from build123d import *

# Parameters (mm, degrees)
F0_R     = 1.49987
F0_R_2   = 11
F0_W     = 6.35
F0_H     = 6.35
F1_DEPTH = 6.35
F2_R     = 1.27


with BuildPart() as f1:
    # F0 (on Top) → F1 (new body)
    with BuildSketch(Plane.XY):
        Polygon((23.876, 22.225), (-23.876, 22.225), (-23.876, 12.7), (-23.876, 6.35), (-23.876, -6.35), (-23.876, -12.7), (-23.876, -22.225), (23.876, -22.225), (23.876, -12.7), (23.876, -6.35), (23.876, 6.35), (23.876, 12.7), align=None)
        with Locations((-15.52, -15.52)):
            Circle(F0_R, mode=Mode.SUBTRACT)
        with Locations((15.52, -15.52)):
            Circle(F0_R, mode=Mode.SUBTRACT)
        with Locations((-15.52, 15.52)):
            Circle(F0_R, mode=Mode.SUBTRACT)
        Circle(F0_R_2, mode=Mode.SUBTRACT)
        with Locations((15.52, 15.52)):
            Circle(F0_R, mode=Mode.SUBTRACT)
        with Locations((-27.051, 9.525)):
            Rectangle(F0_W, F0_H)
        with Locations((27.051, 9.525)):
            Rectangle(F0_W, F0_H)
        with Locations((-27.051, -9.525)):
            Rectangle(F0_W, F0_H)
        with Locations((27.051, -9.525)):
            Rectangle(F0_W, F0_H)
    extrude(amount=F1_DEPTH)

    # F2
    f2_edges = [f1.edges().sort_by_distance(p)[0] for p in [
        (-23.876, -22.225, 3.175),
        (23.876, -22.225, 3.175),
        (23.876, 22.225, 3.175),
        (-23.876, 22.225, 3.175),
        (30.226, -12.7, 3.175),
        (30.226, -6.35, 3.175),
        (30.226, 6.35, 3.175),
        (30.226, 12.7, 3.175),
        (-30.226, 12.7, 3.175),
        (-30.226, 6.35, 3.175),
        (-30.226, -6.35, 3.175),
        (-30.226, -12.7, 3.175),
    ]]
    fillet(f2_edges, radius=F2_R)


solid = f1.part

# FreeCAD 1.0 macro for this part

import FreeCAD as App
import Part
import Sketcher
from FreeCAD import Vector
Q = App.Units.Quantity


def edges_at(feature, points):
    """Names of the edges that pass closest to the given points."""
    edges = feature.Shape.Edges
    near = lambda p: min(range(len(edges)), key=lambda i: edges[i].distToShape(Part.Vertex(*p))[0])
    return sorted({f"Edge{near(p) + 1}" for p in points})


def add_polygon(sketch, points):
    """Adds a closed chain of lines whose ends are joined by coincident constraints."""
    first, n = sketch.GeometryCount, len(points)
    for a, b in zip(points, points[1:] + points[:1]):
        sketch.addGeometry(Part.LineSegment(App.Vector(*a, 0), App.Vector(*b, 0)), False)
    for i in range(n):
        sketch.addConstraint(Sketcher.Constraint("Coincident", first + i, 2, first + (i + 1) % n, 1))

doc = App.newDocument("Part")
body = doc.addObject("PartDesign::Body", "Body")

# Sketch on XY plane
sketch1 = body.newObject("Sketcher::SketchObject", "Sketch")
sketch1.AttachmentSupport = (doc.getObject("XY_Plane"), [""])
sketch1.MapMode = "FlatFace"
add_polygon(sketch1, [(23.9, 22.2), (-23.9, 22.2), (-23.9, 12.7), (-30.2, 12.7), (-30.2, 6.3), (-23.9, 6.3), (-23.9, -6.3), (-30.2, -6.3), (-30.2, -12.7), (-23.9, -12.7), (-23.9, -22.2), (23.9, -22.2), (23.9, -12.7), (30.2, -12.7), (30.2, -6.3), (23.9, -6.3), (23.9, 6.3), (30.2, 6.3), (30.2, 12.7), (23.9, 12.7)])  # lines 0-19
sketch1.addGeometry(Part.Circle(Vector(-15.5, -15.5, 0), Vector(0, 0, 1), 1.5), False)  # 20
sketch1.addGeometry(Part.Circle(Vector(15.5, -15.5, 0), Vector(0, 0, 1), 1.5), False)  # 21
sketch1.addGeometry(Part.Circle(Vector(-15.5, 15.5, 0), Vector(0, 0, 1), 1.5), False)  # 22
sketch1.addGeometry(Part.Circle(Vector(0, 0, 0), Vector(0, 0, 1), 11), False)  # 23
sketch1.addGeometry(Part.Circle(Vector(15.5, 15.5, 0), Vector(0, 0, 1), 1.5), False)  # 24
sketch1.addConstraint([
    Sketcher.Constraint("Horizontal", 0),
    Sketcher.Constraint("Vertical", 1),
    Sketcher.Constraint("Horizontal", 2),
    Sketcher.Constraint("Vertical", 3),
    Sketcher.Constraint("Horizontal", 4),
    Sketcher.Constraint("Vertical", 5),
    Sketcher.Constraint("Horizontal", 6),
    Sketcher.Constraint("Vertical", 7),
    Sketcher.Constraint("Horizontal", 8),
    Sketcher.Constraint("Vertical", 9),
    Sketcher.Constraint("Horizontal", 10),
    Sketcher.Constraint("Vertical", 11),
    Sketcher.Constraint("Horizontal", 12),
    Sketcher.Constraint("Vertical", 13),
    Sketcher.Constraint("Horizontal", 14),
    Sketcher.Constraint("Vertical", 15),
    Sketcher.Constraint("Horizontal", 16),
    Sketcher.Constraint("Vertical", 17),
    Sketcher.Constraint("Horizontal", 18),
    Sketcher.Constraint("Vertical", 19),
    Sketcher.Constraint("Coincident", 23, 3, -1, 1),
    Sketcher.Constraint("Equal", 20, 21),
    Sketcher.Constraint("Equal", 21, 22),
    Sketcher.Constraint("Equal", 22, 24),
    Sketcher.Constraint("Symmetric", 21, 3, 22, 3, -1, 1),
    Sketcher.Constraint("Symmetric", 20, 3, 24, 3, -1, 1),
    Sketcher.Constraint("Symmetric", 0, 2, 10, 2, -1, 1),
    Sketcher.Constraint("Symmetric", 2, 2, 12, 2, -1, 1),
    Sketcher.Constraint("Symmetric", 4, 2, 14, 2, -1, 1),
    Sketcher.Constraint("Symmetric", 6, 2, 16, 2, -1, 1),
    Sketcher.Constraint("Symmetric", 8, 2, 18, 2, -1, 1),
    Sketcher.Constraint("Symmetric", 20, 3, 21, 3, -2),
    Sketcher.Constraint("Symmetric", 8, 2, 11, 2, -2),
    Sketcher.Constraint("Symmetric", 6, 2, 13, 2, -2),
    Sketcher.Constraint("Vertical", 1, 2, 4, 2),
    Sketcher.Constraint("Equal", 18, 3),
    Sketcher.Constraint("DistanceY", 5, 2, 5, 1, Q("0.5 in")),
    Sketcher.Constraint("Diameter", 20, Q("0.1181 in")),
    Sketcher.Constraint("DistanceX", 0, 2, 0, 1, Q("1.88 in")),
    Sketcher.Constraint("DistanceX", 2, 2, 2, 1, Q("0.25 in")),
    Sketcher.Constraint("Diameter", 23, Q("22 mm")),
    Sketcher.Constraint("DistanceY", 1, 2, 1, 1, Q("0.375 in")),
    Sketcher.Constraint("DistanceX", 20, 3, -1, 1, Q("15.52 mm")),
    Sketcher.Constraint("DistanceY", 20, 3, -1, 1, Q("15.52 mm")),
])
pad1 = body.newObject("PartDesign::Pad", "Pad")
pad1.Profile = sketch1
pad1.Length = Q("0.25 in")
doc.recompute()

fillet = body.newObject("PartDesign::Fillet", "Fillet")
fillet.Base = (pad1, edges_at(pad1, [
    (-23.876, -22.225, 3.175),
    (23.876, -22.225, 3.175),
    (23.876, 22.225, 3.175),
    (-23.876, 22.225, 3.175),
    (30.226, -12.7, 3.175),
    (30.226, -6.35, 3.175),
    (30.226, 6.35, 3.175),
    (30.226, 12.7, 3.175),
    (-30.226, 12.7, 3.175),
    (-30.226, 6.35, 3.175),
    (-30.226, -6.35, 3.175),
    (-30.226, -12.7, 3.175),
]))
fillet.Radius = Q("0.05 in")

doc.recompute()
